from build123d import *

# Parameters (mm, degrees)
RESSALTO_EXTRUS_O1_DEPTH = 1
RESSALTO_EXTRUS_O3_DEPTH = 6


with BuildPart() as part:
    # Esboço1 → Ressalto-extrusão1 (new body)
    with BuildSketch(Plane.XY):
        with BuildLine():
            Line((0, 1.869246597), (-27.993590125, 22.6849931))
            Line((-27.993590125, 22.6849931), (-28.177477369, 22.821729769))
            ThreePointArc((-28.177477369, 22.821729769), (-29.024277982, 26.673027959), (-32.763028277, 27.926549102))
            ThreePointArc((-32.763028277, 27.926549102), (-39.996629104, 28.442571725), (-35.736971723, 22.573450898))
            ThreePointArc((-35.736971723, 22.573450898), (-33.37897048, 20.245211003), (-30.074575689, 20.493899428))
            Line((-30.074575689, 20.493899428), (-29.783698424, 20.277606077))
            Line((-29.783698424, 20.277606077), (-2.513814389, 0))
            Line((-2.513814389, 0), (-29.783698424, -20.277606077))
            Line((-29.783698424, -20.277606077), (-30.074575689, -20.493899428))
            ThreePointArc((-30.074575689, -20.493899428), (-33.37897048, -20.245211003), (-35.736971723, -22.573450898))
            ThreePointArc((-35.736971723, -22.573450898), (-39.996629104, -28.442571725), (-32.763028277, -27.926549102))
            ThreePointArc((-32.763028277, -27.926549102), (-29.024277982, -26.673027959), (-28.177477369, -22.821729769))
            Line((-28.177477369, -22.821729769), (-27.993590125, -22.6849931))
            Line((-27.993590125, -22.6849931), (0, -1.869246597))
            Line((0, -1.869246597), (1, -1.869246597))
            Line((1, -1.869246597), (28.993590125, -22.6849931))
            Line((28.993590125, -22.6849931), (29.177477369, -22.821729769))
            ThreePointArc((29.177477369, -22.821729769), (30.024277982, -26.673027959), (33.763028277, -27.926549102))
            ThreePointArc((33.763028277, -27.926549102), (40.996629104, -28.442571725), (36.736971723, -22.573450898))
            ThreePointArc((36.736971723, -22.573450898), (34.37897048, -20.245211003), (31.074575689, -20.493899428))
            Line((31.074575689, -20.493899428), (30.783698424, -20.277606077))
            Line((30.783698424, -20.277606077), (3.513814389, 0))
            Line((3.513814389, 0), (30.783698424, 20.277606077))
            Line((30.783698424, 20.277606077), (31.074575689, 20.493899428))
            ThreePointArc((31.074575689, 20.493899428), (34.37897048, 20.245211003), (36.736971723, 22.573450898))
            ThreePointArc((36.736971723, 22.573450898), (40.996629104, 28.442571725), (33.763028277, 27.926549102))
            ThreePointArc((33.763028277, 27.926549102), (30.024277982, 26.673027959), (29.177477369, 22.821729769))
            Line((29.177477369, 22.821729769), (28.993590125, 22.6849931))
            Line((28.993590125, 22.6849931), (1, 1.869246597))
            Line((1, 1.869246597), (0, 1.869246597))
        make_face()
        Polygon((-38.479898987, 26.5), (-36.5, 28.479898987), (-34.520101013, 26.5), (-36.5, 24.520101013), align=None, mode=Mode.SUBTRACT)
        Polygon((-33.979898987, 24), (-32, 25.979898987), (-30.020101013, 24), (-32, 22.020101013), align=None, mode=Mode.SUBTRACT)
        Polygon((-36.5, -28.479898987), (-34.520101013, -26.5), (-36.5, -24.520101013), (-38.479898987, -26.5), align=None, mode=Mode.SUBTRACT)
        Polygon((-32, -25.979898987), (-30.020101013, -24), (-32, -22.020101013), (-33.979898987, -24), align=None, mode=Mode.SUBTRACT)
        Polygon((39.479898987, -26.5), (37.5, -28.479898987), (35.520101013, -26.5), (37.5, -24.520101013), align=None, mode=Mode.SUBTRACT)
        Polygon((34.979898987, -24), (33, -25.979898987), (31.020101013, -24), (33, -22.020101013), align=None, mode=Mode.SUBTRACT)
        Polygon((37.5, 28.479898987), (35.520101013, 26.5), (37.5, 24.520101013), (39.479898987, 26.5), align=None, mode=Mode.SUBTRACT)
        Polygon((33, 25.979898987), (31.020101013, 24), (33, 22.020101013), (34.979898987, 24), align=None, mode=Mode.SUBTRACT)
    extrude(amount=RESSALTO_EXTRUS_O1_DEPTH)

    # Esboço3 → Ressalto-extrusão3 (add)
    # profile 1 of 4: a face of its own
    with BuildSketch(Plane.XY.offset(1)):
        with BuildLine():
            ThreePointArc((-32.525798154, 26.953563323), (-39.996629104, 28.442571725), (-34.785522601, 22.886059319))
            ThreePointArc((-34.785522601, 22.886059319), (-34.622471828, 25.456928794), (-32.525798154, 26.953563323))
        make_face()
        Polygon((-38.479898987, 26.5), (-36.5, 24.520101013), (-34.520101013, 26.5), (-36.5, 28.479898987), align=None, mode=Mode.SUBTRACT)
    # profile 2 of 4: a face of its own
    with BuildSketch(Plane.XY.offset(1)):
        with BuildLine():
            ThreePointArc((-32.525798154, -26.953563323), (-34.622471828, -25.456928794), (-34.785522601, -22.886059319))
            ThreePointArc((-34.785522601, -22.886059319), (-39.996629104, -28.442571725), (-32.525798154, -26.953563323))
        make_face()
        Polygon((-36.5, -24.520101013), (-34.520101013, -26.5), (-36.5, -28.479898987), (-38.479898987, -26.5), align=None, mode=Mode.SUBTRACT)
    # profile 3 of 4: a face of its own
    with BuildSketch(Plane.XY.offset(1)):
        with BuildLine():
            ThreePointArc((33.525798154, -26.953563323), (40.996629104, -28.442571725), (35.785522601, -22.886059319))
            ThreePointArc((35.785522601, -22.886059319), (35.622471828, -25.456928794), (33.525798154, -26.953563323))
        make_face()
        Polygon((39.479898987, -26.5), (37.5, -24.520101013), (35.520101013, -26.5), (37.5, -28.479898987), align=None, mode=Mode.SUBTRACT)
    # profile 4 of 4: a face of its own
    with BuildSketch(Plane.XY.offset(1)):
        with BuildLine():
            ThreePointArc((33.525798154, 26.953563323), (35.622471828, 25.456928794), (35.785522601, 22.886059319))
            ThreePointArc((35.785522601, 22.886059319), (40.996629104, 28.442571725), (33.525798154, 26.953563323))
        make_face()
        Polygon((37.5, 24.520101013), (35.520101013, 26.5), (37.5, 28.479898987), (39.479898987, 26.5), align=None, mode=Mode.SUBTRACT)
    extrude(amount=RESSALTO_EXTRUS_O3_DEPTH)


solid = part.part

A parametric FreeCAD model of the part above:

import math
import FreeCAD as App
import Part
import Sketcher
Q = App.Units.Quantity


def add_polygon(sketch, points):
    """Adds a closed chain of lines whose ends are joined by coincident constraints."""
    first, n = sketch.GeometryCount, len(points)
    for a, b in zip(points, points[1:] + points[:1]):
        sketch.addGeometry(Part.LineSegment(App.Vector(*a, 0), App.Vector(*b, 0)), False)
    for i in range(n):
        sketch.addConstraint(Sketcher.Constraint("Coincident", first + i, 2, first + (i + 1) % n, 1))

doc = App.newDocument("Part")
body = doc.addObject("PartDesign::Body", "Body")

# Sketch on XY plane
sketch1 = doc.addObject("Sketcher::SketchObject", "Sketch")
body.addObject(sketch1)
sketch1.AttachmentSupport = (doc.XY_Plane, [""])
sketch1.MapMode = "FlatFace"
sketch1.addGeometry(Part.LineSegment(App.Vector(0, 1.87, 0), App.Vector(-27.99, 22.68, 0)), False)  # 0
sketch1.addGeometry(Part.LineSegment(App.Vector(-27.99, 22.68, 0), App.Vector(-28.18, 22.82, 0)), False)  # 1
sketch1.addGeometry(Part.ArcOfCircle(Part.Circle(App.Vector(-32, 24, 0), App.Vector(0, 0, 1), 4), math.radians(-17), math.radians(101)), False)  # 2
sketch1.addGeometry(Part.ArcOfCircle(Part.Circle(App.Vector(-36.5, 26.5, 0), App.Vector(0, 0, 1), 4), math.radians(21), math.radians(281)), False)  # 3
sketch1.addGeometry(Part.ArcOfCircle(Part.Circle(App.Vector(-32, 24, 0), App.Vector(0, 0, 1), 4), math.radians(-159), math.radians(-61)), False)  # 4
sketch1.addGeometry(Part.LineSegment(App.Vector(-30.07, 20.49, 0), App.Vector(-29.78, 20.28, 0)), False)  # 5
sketch1.addGeometry(Part.LineSegment(App.Vector(-29.78, 20.28, 0), App.Vector(-2.51, 0, 0)), False)  # 6
sketch1.addGeometry(Part.LineSegment(App.Vector(-2.51, 0, 0), App.Vector(-29.78, -20.28, 0)), False)  # 7
sketch1.addGeometry(Part.LineSegment(App.Vector(-29.78, -20.28, 0), App.Vector(-30.07, -20.49, 0)), False)  # 8
sketch1.addGeometry(Part.ArcOfCircle(Part.Circle(App.Vector(-32, -24, 0), App.Vector(0, 0, 1), 4), math.radians(61), math.radians(159)), False)  # 9
sketch1.addGeometry(Part.ArcOfCircle(Part.Circle(App.Vector(-36.5, -26.5, 0), App.Vector(0, 0, 1), 4), math.radians(79), math.radians(339)), False)  # 10
sketch1.addGeometry(Part.ArcOfCircle(Part.Circle(App.Vector(-32, -24, 0), App.Vector(0, 0, 1), 4), math.radians(-101), math.radians(17)), False)  # 11
sketch1.addGeometry(Part.LineSegment(App.Vector(-28.18, -22.82, 0), App.Vector(-27.99, -22.68, 0)), False)  # 12
sketch1.addGeometry(Part.LineSegment(App.Vector(-27.99, -22.68, 0), App.Vector(0, -1.87, 0)), False)  # 13
sketch1.addGeometry(Part.LineSegment(App.Vector(0, -1.87, 0), App.Vector(1, -1.87, 0)), False)  # 14
sketch1.addGeometry(Part.LineSegment(App.Vector(1, -1.87, 0), App.Vector(28.99, -22.68, 0)), False)  # 15
sketch1.addGeometry(Part.LineSegment(App.Vector(28.99, -22.68, 0), App.Vector(29.18, -22.82, 0)), False)  # 16
sketch1.addGeometry(Part.ArcOfCircle(Part.Circle(App.Vector(33, -24, 0), App.Vector(0, 0, 1), 4), math.radians(163), math.radians(281)), False)  # 17
sketch1.addGeometry(Part.ArcOfCircle(Part.Circle(App.Vector(37.5, -26.5, 0), App.Vector(0, 0, 1), 4), math.radians(-159), math.radians(101)), False)  # 18
sketch1.addGeometry(Part.ArcOfCircle(Part.Circle(App.Vector(33, -24, 0), App.Vector(0, 0, 1), 4), math.radians(21), math.radians(119)), False)  # 19
sketch1.addGeometry(Part.LineSegment(App.Vector(31.07, -20.49, 0), App.Vector(30.78, -20.28, 0)), False)  # 20
sketch1.addGeometry(Part.LineSegment(App.Vector(30.78, -20.28, 0), App.Vector(3.51, 0, 0)), False)  # 21
sketch1.addGeometry(Part.LineSegment(App.Vector(3.51, 0, 0), App.Vector(30.78, 20.28, 0)), False)  # 22
sketch1.addGeometry(Part.LineSegment(App.Vector(30.78, 20.28, 0), App.Vector(31.07, 20.49, 0)), False)  # 23
sketch1.addGeometry(Part.ArcOfCircle(Part.Circle(App.Vector(33, 24, 0), App.Vector(0, 0, 1), 4), math.radians(-119), math.radians(-21)), False)  # 24
sketch1.addGeometry(Part.ArcOfCircle(Part.Circle(App.Vector(37.5, 26.5, 0), App.Vector(0, 0, 1), 4), math.radians(-101), math.radians(159)), False)  # 25
sketch1.addGeometry(Part.ArcOfCircle(Part.Circle(App.Vector(33, 24, 0), App.Vector(0, 0, 1), 4), math.radians(79), math.radians(197)), False)  # 26
sketch1.addGeometry(Part.LineSegment(App.Vector(29.18, 22.82, 0), App.Vector(28.99, 22.68, 0)), False)  # 27
sketch1.addGeometry(Part.LineSegment(App.Vector(28.99, 22.68, 0), App.Vector(1, 1.87, 0)), False)  # 28
sketch1.addGeometry(Part.LineSegment(App.Vector(1, 1.87, 0), App.Vector(0, 1.87, 0)), False)  # 29
add_polygon(sketch1, [(-34.52, -26.5), (-36.5, -28.48), (-38.48, -26.5), (-36.5, -24.52)])  # lines 30-33
add_polygon(sketch1, [(-30.02, -24), (-32, -25.98), (-33.98, -24), (-32, -22.02)])  # lines 34-37
add_polygon(sketch1, [(37.5, -24.52), (39.48, -26.5), (37.5, -28.48), (35.52, -26.5)])  # lines 38-41
add_polygon(sketch1, [(33, -22.02), (34.98, -24), (33, -25.98), (31.02, -24)])  # lines 42-45
add_polygon(sketch1, [(-32, 22.02), (-33.98, 24), (-32, 25.98), (-30.02, 24)])  # lines 46-49
add_polygon(sketch1, [(-36.5, 24.52), (-38.48, 26.5), (-36.5, 28.48), (-34.52, 26.5)])  # lines 50-53
add_polygon(sketch1, [(31.02, 24), (33, 25.98), (34.98, 24), (33, 22.02)])  # lines 54-57
add_polygon(sketch1, [(35.52, 26.5), (37.5, 28.48), (39.48, 26.5), (37.5, 24.52)])  # lines 58-61
sketch1.addConstraint([
    Sketcher.Constraint("Coincident", 0, 2, 1, 1),
    Sketcher.Constraint("Coincident", 1, 2, 2, 1),
    Sketcher.Constraint("Coincident", 2, 2, 3, 1),
    Sketcher.Constraint("Coincident", 3, 2, 4, 1),
    Sketcher.Constraint("Coincident", 4, 2, 5, 1),
    Sketcher.Constraint("Coincident", 5, 2, 6, 1),
    Sketcher.Constraint("Coincident", 6, 2, 7, 1),
    Sketcher.Constraint("Coincident", 7, 2, 8, 1),
    Sketcher.Constraint("Coincident", 8, 2, 9, 1),
    Sketcher.Constraint("Coincident", 9, 2, 10, 1),
    Sketcher.Constraint("Coincident", 10, 2, 11, 1),
    Sketcher.Constraint("Coincident", 11, 2, 12, 1),
    Sketcher.Constraint("Coincident", 12, 2, 13, 1),
    Sketcher.Constraint("Coincident", 13, 2, 14, 1),
    Sketcher.Constraint("Coincident", 14, 2, 15, 1),
    Sketcher.Constraint("Coincident", 15, 2, 16, 1),
    Sketcher.Constraint("Coincident", 16, 2, 17, 1),
    Sketcher.Constraint("Coincident", 17, 2, 18, 1),
    Sketcher.Constraint("Coincident", 18, 2, 19, 1),
    Sketcher.Constraint("Coincident", 19, 2, 20, 1),
    Sketcher.Constraint("Coincident", 20, 2, 21, 1),
    Sketcher.Constraint("Coincident", 21, 2, 22, 1),
    Sketcher.Constraint("Coincident", 22, 2, 23, 1),
    Sketcher.Constraint("Coincident", 23, 2, 24, 1),
    Sketcher.Constraint("Coincident", 24, 2, 25, 1),
    Sketcher.Constraint("Coincident", 25, 2, 26, 1),
    Sketcher.Constraint("Coincident", 26, 2, 27, 1),
    Sketcher.Constraint("Coincident", 27, 2, 28, 1),
    Sketcher.Constraint("Coincident", 28, 2, 29, 1),
    Sketcher.Constraint("Coincident", 29, 2, 0, 1),
    Sketcher.Constraint("Horizontal", 14),
    Sketcher.Constraint("Horizontal", 29),
    Sketcher.Constraint("Coincident", 4, 3, 2, 3),
    Sketcher.Constraint("Coincident", 11, 3, 9, 3),
    Sketcher.Constraint("Coincident", 19, 3, 17, 3),
    Sketcher.Constraint("Coincident", 26, 3, 24, 3),
    Sketcher.Constraint("Equal", 2, 3),
    Sketcher.Constraint("Equal", 3, 4),
    Sketcher.Constraint("Equal", 4, 9),
    Sketcher.Constraint("Equal", 9, 10),
    Sketcher.Constraint("Equal", 10, 11),
    Sketcher.Constraint("Equal", 11, 17),
    Sketcher.Constraint("Equal", 17, 18),
    Sketcher.Constraint("Equal", 18, 19),
    Sketcher.Constraint("Equal", 19, 24),
    Sketcher.Constraint("Equal", 24, 25),
    Sketcher.Constraint("Equal", 25, 26),
    Sketcher.Constraint("Symmetric", 13, 2, 29, 2, -1, 1),
    Sketcher.Constraint("Symmetric", 2, 3, 9, 3, -1),
    Sketcher.Constraint("Symmetric", 3, 3, 10, 3, -1),
    Sketcher.Constraint("Symmetric", 17, 3, 24, 3, -1),
    Sketcher.Constraint("Symmetric", 18, 3, 25, 3, -1),
    Sketcher.Constraint("Symmetric", 5, 2, 7, 2, -1),
    Sketcher.Constraint("Symmetric", 0, 2, 12, 2, -1),
    Sketcher.Constraint("Symmetric", 20, 2, 22, 2, -1),
    Sketcher.Constraint("Symmetric", 15, 2, 27, 2, -1),
    Sketcher.Constraint("Symmetric", 35, 2, 46, 2, -1),
    Sketcher.Constraint("Symmetric", 34, 2, 47, 2, -1),
    Sketcher.Constraint("Symmetric", 37, 2, 48, 2, -1),
    Sketcher.Constraint("Symmetric", 36, 2, 49, 2, -1),
    Sketcher.Constraint("Symmetric", 31, 2, 50, 2, -1),
    Sketcher.Constraint("Symmetric", 30, 2, 51, 2, -1),
    Sketcher.Constraint("Symmetric", 33, 2, 52, 2, -1),
    Sketcher.Constraint("Symmetric", 32, 2, 53, 2, -1),
    Sketcher.Constraint("Symmetric", 43, 2, 54, 2, -1),
    Sketcher.Constraint("Symmetric", 42, 2, 55, 2, -1),
    Sketcher.Constraint("Symmetric", 45, 2, 56, 2, -1),
    Sketcher.Constraint("Symmetric", 44, 2, 57, 2, -1),
    Sketcher.Constraint("Symmetric", 39, 2, 58, 2, -1),
    Sketcher.Constraint("Symmetric", 38, 2, 59, 2, -1),
    Sketcher.Constraint("Symmetric", 41, 2, 60, 2, -1),
    Sketcher.Constraint("Symmetric", 40, 2, 61, 2, -1),
    Sketcher.Constraint("PointOnObject", 6, 2, -1),
    Sketcher.Constraint("PointOnObject", 13, 2, -2),
    Sketcher.Constraint("PointOnObject", 21, 2, -1),
    Sketcher.Constraint("Parallel", 0, 1),
    Sketcher.Constraint("Parallel", 1, 5),
    Sketcher.Constraint("Parallel", 5, 6),
    Sketcher.Constraint("Parallel", 7, 8),
    Sketcher.Constraint("Parallel", 8, 12),
    Sketcher.Constraint("Parallel", 6, 15),
    Sketcher.Constraint("Parallel", 15, 16),
    Sketcher.Constraint("Parallel", 16, 20),
    Sketcher.Constraint("Parallel", 20, 21),
    Sketcher.Constraint("Parallel", 22, 23),
    Sketcher.Constraint("Parallel", 23, 27),
    Sketcher.Constraint("Parallel", 27, 28),
    Sketcher.Constraint("Perpendicular", 30, 31),
    Sketcher.Constraint("Perpendicular", 31, 32),
    Sketcher.Constraint("Perpendicular", 32, 33),
    Sketcher.Constraint("Perpendicular", 33, 34),
    Sketcher.Constraint("Perpendicular", 34, 35),
    Sketcher.Constraint("Perpendicular", 35, 36),
    Sketcher.Constraint("Perpendicular", 36, 37),
    Sketcher.Constraint("Parallel", 37, 38),
    Sketcher.Constraint("Perpendicular", 38, 39),
    Sketcher.Constraint("Perpendicular", 39, 40),
    Sketcher.Constraint("Perpendicular", 40, 41),
    Sketcher.Constraint("Perpendicular", 41, 42),
    Sketcher.Constraint("Perpendicular", 42, 43),
    Sketcher.Constraint("Perpendicular", 43, 44),
    Sketcher.Constraint("Perpendicular", 44, 45),
    Sketcher.Constraint("Perpendicular", 45, 46),
    Sketcher.Constraint("Horizontal", 11, 3, 17, 3),
    Sketcher.Constraint("Horizontal", 10, 3, 18, 3),
    Sketcher.Constraint("Horizontal", 12, 2, 15, 2),
    Sketcher.Constraint("Horizontal", 11, 2, 16, 2),
    Sketcher.Constraint("Horizontal", 10, 2, 17, 2),
    Sketcher.Constraint("Horizontal", 8, 2, 19, 2),
    Sketcher.Constraint("Horizontal", 7, 2, 20, 2),
    Sketcher.Constraint("Horizontal", 18, 3, 31, 2),
    Sketcher.Constraint("Horizontal", 31, 2, 33, 2),
    Sketcher.Constraint("Horizontal", 19, 3, 35, 2),
    Sketcher.Constraint("Horizontal", 35, 2, 37, 2),
    Sketcher.Constraint("Horizontal", 33, 2, 38, 2),
    Sketcher.Constraint("Horizontal", 30, 2, 39, 2),
    Sketcher.Constraint("Horizontal", 38, 2, 40, 2),
    Sketcher.Constraint("Horizontal", 37, 2, 42, 2),
    Sketcher.Constraint("Horizontal", 34, 2, 43, 2),
    Sketcher.Constraint("Horizontal", 42, 2, 44, 2),
    Sketcher.Constraint("Vertical", 10, 3, 30, 2),
    Sketcher.Constraint("Vertical", 11, 3, 34, 2),
    Sketcher.Constraint("Vertical", 25, 3, 39, 2),
    Sketcher.Constraint("Vertical", 26, 3, 43, 2),
    Sketcher.Constraint("Equal", 33, 34),
    Sketcher.Constraint("Radius", 2, Q("4 mm")),
    Sketcher.Constraint("DistanceX", 14, 1, 14, 2, Q("1 mm")),
    Sketcher.Constraint("DistanceX", 2, 3, -1, 1, Q("32 mm")),
    Sketcher.Constraint("DistanceY", -1, 1, 2, 3, Q("24 mm")),
    Sketcher.Constraint("Distance", 30, Q("2.8 mm")),
    Sketcher.Constraint("DistanceX", 3, 3, -1, 1, Q("36.5 mm")),
    Sketcher.Constraint("DistanceY", -1, 1, 3, 3, Q("26.5 mm")),
    Sketcher.Constraint("DistanceY", -1, 1, 4, 2, Q("20.493899 mm")),
    Sketcher.Constraint("DistanceX", 5, 2, -1, 1, Q("29.783698 mm")),
    Sketcher.Constraint("Distance", 6, Q("33.982759 mm")),
    Sketcher.Constraint("DistanceX", 0, 2, -1, 1, Q("27.99359 mm")),
    Sketcher.Constraint("DistanceY", -1, 1, 1, 2, Q("22.82173 mm")),
])
pad1 = doc.addObject("PartDesign::Pad", "Pad")
body.addObject(pad1)
pad1.Profile = sketch1
pad1.Length = 1

# Sketch on XY plane
sketch2 = doc.addObject("Sketcher::SketchObject", "Sketch001")
body.addObject(sketch2)
sketch2.AttachmentSupport = (doc.XY_Plane, [""])
sketch2.MapMode = "FlatFace"
sketch2.AttachmentOffset = App.Placement(App.Vector(0, 0, 1), App.Rotation())
sketch2.addGeometry(Part.ArcOfCircle(Part.Circle(App.Vector(-36.5, 26.5, 0), App.Vector(0, 0, 1), 4), math.radians(7), math.radians(295)), False)  # 0
sketch2.addGeometry(Part.ArcOfCircle(Part.Circle(App.Vector(-32, 24, 0), App.Vector(0, 0, 1), 3), math.radians(100), math.radians(202)), False)  # 1
add_polygon(sketch2, [(-36.5, 24.5), (-38.5, 26.5), (-36.5, 28.5), (-34.5, 26.5)])  # lines 2-5
sketch2.addGeometry(Part.ArcOfCircle(Part.Circle(App.Vector(-32, -24, 0), App.Vector(0, 0, 1), 3), math.radians(158), math.radians(260)), False)  # 6
sketch2.addGeometry(Part.ArcOfCircle(Part.Circle(App.Vector(-36.5, -26.5, 0), App.Vector(0, 0, 1), 4), math.radians(65), math.radians(353)), False)  # 7
add_polygon(sketch2, [(-38.5, -26.5), (-36.5, -24.5), (-34.5, -26.5), (-36.5, -28.5)])  # lines 8-11
sketch2.addGeometry(Part.ArcOfCircle(Part.Circle(App.Vector(37.5, -26.5, 0), App.Vector(0, 0, 1), 4), math.radians(-173), math.radians(115)), False)  # 12
sketch2.addGeometry(Part.ArcOfCircle(Part.Circle(App.Vector(33, -24, 0), App.Vector(0, 0, 1), 3), math.radians(-80), math.radians(22)), False)  # 13
add_polygon(sketch2, [(37.5, -24.5), (39.5, -26.5), (37.5, -28.5), (35.5, -26.5)])  # lines 14-17
sketch2.addGeometry(Part.ArcOfCircle(Part.Circle(App.Vector(33, 24, 0), App.Vector(0, 0, 1), 3), math.radians(-22), math.radians(80)), False)  # 18
sketch2.addGeometry(Part.ArcOfCircle(Part.Circle(App.Vector(37.5, 26.5, 0), App.Vector(0, 0, 1), 4), math.radians(-115), math.radians(173)), False)  # 19
add_polygon(sketch2, [(39.5, 26.5), (37.5, 24.5), (35.5, 26.5), (37.5, 28.5)])  # lines 20-23
sketch2.addConstraint([
    Sketcher.Constraint("Coincident", 0, 1, 1, 1),
    Sketcher.Constraint("Coincident", 1, 2, 0, 2),
    Sketcher.Constraint("Coincident", 6, 1, 7, 1),
    Sketcher.Constraint("Coincident", 7, 2, 6, 2),
    Sketcher.Constraint("Coincident", 12, 1, 13, 1),
    Sketcher.Constraint("Coincident", 13, 2, 12, 2),
    Sketcher.Constraint("Coincident", 18, 1, 19, 1),
    Sketcher.Constraint("Coincident", 19, 2, 18, 2),
    Sketcher.Constraint("Equal", 1, 6),
    Sketcher.Constraint("Equal", 0, 7),
    Sketcher.Constraint("Equal", 7, 12),
    Sketcher.Constraint("Equal", 6, 13),
    Sketcher.Constraint("Equal", 13, 18),
    Sketcher.Constraint("Equal", 12, 19),
    Sketcher.Constraint("Symmetric", 1, 3, 6, 3, -1),
    Sketcher.Constraint("Symmetric", 0, 3, 7, 3, -1),
    Sketcher.Constraint("Symmetric", 13, 3, 18, 3, -1),
    Sketcher.Constraint("Symmetric", 12, 3, 19, 3, -1),
    Sketcher.Constraint("Symmetric", 5, 2, 8, 2, -1),
    Sketcher.Constraint("Symmetric", 4, 2, 9, 2, -1),
    Sketcher.Constraint("Symmetric", 3, 2, 10, 2, -1),
    Sketcher.Constraint("Symmetric", 2, 2, 11, 2, -1),
    Sketcher.Constraint("Symmetric", 17, 2, 20, 2, -1),
    Sketcher.Constraint("Symmetric", 16, 2, 21, 2, -1),
    Sketcher.Constraint("Symmetric", 15, 2, 22, 2, -1),
    Sketcher.Constraint("Symmetric", 14, 2, 23, 2, -1),
    Sketcher.Constraint("Perpendicular", 2, 3),
    Sketcher.Constraint("Perpendicular", 3, 4),
    Sketcher.Constraint("Perpendicular", 4, 5),
    Sketcher.Constraint("Parallel", 5, 8),
    Sketcher.Constraint("Parallel", 11, 14),
    Sketcher.Constraint("Perpendicular", 14, 15),
    Sketcher.Constraint("Perpendicular", 15, 16),
    Sketcher.Constraint("Perpendicular", 16, 17),
    Sketcher.Constraint("Horizontal", 7, 3, 12, 3),
    Sketcher.Constraint("Horizontal", 6, 3, 13, 3),
    Sketcher.Constraint("Horizontal", 19, 3, 2, 2),
    Sketcher.Constraint("Horizontal", 2, 2, 4, 2),
    Sketcher.Constraint("Horizontal", 7, 2, 12, 1),
    Sketcher.Constraint("Horizontal", 11, 2, 14, 2),
    Sketcher.Constraint("Horizontal", 10, 2, 15, 2),
    Sketcher.Constraint("Horizontal", 14, 2, 16, 2),
    Sketcher.Constraint("Vertical", 7, 3, 3, 2),
    Sketcher.Constraint("Vertical", 19, 3, 15, 2),
    Sketcher.Constraint("Radius", 0, Q("4 mm")),
    Sketcher.Constraint("Radius", 1, Q("3 mm")),
    Sketcher.Constraint("DistanceX", 1, 3, -1, 1, Q("32 mm")),
    Sketcher.Constraint("DistanceY", -1, 1, 1, 3, Q("24 mm")),
    Sketcher.Constraint("DistanceX", -1, 1, 13, 3, Q("33 mm")),
    Sketcher.Constraint("DistanceY", 7, 3, 0, 3, Q("53 mm")),
    Sketcher.Constraint("DistanceX", 7, 3, 12, 3, Q("74 mm")),
    Sketcher.Constraint("Distance", 2, Q("2.8 mm")),
])
pad2 = doc.addObject("PartDesign::Pad", "Pad001")
body.addObject(pad2)
pad2.Profile = sketch2
pad2.Length = 6

doc.recompute()
